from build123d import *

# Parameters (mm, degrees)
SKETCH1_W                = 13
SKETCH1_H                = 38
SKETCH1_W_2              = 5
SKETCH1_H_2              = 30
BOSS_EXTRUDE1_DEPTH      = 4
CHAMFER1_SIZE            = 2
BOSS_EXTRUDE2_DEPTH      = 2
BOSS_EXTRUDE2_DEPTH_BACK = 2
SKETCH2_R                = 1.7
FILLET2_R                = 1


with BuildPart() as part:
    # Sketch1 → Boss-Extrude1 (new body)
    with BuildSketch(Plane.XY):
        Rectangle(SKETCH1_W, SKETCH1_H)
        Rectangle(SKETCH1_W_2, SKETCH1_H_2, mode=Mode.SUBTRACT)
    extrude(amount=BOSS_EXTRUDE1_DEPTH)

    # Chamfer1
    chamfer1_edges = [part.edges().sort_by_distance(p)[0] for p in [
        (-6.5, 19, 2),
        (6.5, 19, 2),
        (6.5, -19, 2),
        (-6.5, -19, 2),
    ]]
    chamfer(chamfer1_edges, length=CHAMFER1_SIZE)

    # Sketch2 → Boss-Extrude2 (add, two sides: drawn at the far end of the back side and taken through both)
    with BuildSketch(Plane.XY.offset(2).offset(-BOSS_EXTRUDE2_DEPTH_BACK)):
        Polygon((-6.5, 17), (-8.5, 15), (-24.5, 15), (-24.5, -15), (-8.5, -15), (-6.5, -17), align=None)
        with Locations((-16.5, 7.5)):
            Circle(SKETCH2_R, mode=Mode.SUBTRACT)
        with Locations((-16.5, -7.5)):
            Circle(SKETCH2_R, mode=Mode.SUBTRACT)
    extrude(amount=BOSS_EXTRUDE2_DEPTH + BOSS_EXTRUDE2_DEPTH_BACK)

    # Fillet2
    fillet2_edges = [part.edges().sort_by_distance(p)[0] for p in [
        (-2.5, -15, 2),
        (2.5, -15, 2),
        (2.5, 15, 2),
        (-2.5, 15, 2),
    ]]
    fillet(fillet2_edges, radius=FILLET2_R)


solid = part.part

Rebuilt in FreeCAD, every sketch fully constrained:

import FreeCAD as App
import Part
import Sketcher
Q = App.Units.Quantity


def edges_at(feature, points):
    """Names of the edges that pass closest to the given points."""
    edges = feature.Shape.Edges
    near = lambda p: min(range(len(edges)), key=lambda i: edges[i].distToShape(Part.Vertex(*p))[0])
    return sorted({f"Edge{near(p) + 1}" for p in points})

doc = App.newDocument("Part")
params = doc.addObject("Spreadsheet::Sheet", "Params")
for row, (alias, value) in enumerate([
    ("sketch1_width", "13 mm"),
    ("sketch1_width2", "5 mm"),
    ("sketch1_height", "38 mm"),
    ("sketch1_height2", "30 mm"),
    ("pad1_length", "4 mm"),
    ("chamfer_size", "2 mm"),
    ("sketch2_diameter", "3.4 mm"),
    ("sketch2_width", "16 mm"),
    ("sketch2_height", "30 mm"),
    ("sketch2_height2", "34 mm"),
    ("pad2_length", "2 mm"),
    ("pad2_length2", "2 mm"),
    ("fillet_radius", "1 mm"),
], start=1):
    params.set(f"A{row}", alias)
    params.set(f"B{row}", "=" + value)
    params.setAlias(f"B{row}", alias)

body = doc.addObject("PartDesign::Body", "Body")

# Sketch on XY plane
sketch1 = body.newObject("Sketcher::SketchObject", "Sketch")
sketch1.AttachmentSupport = (doc.getObject("XY_Plane"), [""])
sketch1.MapMode = "FlatFace"
sketch1.addGeometry(Part.LineSegment(App.Vector(-6.5, 19, 0), App.Vector(-6.5, -19, 0)), False)
sketch1.addGeometry(Part.LineSegment(App.Vector(-6.5, -19, 0), App.Vector(6.5, -19, 0)), False)
sketch1.addGeometry(Part.LineSegment(App.Vector(6.5, -19, 0), App.Vector(6.5, 19, 0)), False)
sketch1.addGeometry(Part.LineSegment(App.Vector(6.5, 19, 0), App.Vector(-6.5, 19, 0)), False)
sketch1.addGeometry(Part.LineSegment(App.Vector(2.5, -15, 0), App.Vector(-2.5, -15, 0)), False)
sketch1.addGeometry(Part.LineSegment(App.Vector(-2.5, -15, 0), App.Vector(-2.5, 15, 0)), False)
sketch1.addGeometry(Part.LineSegment(App.Vector(-2.5, 15, 0), App.Vector(2.5, 15, 0)), False)
sketch1.addGeometry(Part.LineSegment(App.Vector(2.5, 15, 0), App.Vector(2.5, -15, 0)), False)
sketch1.addConstraint(Sketcher.Constraint("Coincident", 0, 2, 1, 1))
sketch1.addConstraint(Sketcher.Constraint("Coincident", 1, 2, 2, 1))
sketch1.addConstraint(Sketcher.Constraint("Coincident", 2, 2, 3, 1))
sketch1.addConstraint(Sketcher.Constraint("Coincident", 3, 2, 0, 1))
sketch1.addConstraint(Sketcher.Constraint("Coincident", 4, 2, 5, 1))
sketch1.addConstraint(Sketcher.Constraint("Coincident", 5, 2, 6, 1))
sketch1.addConstraint(Sketcher.Constraint("Coincident", 6, 2, 7, 1))
sketch1.addConstraint(Sketcher.Constraint("Coincident", 7, 2, 4, 1))
sketch1.addConstraint(Sketcher.Constraint("Vertical", 0))
sketch1.addConstraint(Sketcher.Constraint("Horizontal", 1))
sketch1.addConstraint(Sketcher.Constraint("Vertical", 2))
sketch1.addConstraint(Sketcher.Constraint("Horizontal", 3))
sketch1.addConstraint(Sketcher.Constraint("Horizontal", 4))
sketch1.addConstraint(Sketcher.Constraint("Vertical", 5))
sketch1.addConstraint(Sketcher.Constraint("Horizontal", 6))
sketch1.addConstraint(Sketcher.Constraint("Vertical", 7))
sketch1.addConstraint(Sketcher.Constraint("Symmetric", 0, 2, 2, 2, -1, 1))
sketch1.addConstraint(Sketcher.Constraint("Symmetric", 4, 2, 6, 2, -1, 1))
sketch1.addConstraint(Sketcher.Constraint("DistanceX", 1, 1, 1, 2, Q("13 mm")))
sketch1.addConstraint(Sketcher.Constraint("DistanceX", 4, 2, 4, 1, Q("5 mm")))
sketch1.addConstraint(Sketcher.Constraint("DistanceY", 0, 2, 0, 1, Q("38 mm")))
sketch1.addConstraint(Sketcher.Constraint("DistanceY", 5, 1, 5, 2, Q("30 mm")))
sketch1.setExpression("Constraints[18]", "Params.sketch1_width")
sketch1.setExpression("Constraints[19]", "Params.sketch1_width2")
sketch1.setExpression("Constraints[20]", "Params.sketch1_height")
sketch1.setExpression("Constraints[21]", "Params.sketch1_height2")
pad1 = body.newObject("PartDesign::Pad", "Pad")
pad1.Profile = sketch1
pad1.setExpression("Length", "Params.pad1_length")
doc.recompute()

chamfer = body.newObject("PartDesign::Chamfer", "Chamfer")
chamfer.Base = (pad1, edges_at(pad1, [
    (-6.5, 19, 2),
    (6.5, 19, 2),
    (6.5, -19, 2),
    (-6.5, -19, 2),
]))
chamfer.setExpression("Size", "Params.chamfer_size")

# Sketch on XY plane
sketch2 = body.newObject("Sketcher::SketchObject", "Sketch001")
sketch2.AttachmentSupport = (doc.getObject("XY_Plane"), [""])
sketch2.MapMode = "FlatFace"
sketch2.AttachmentOffset = App.Placement(App.Vector(0, 0, 2), App.Rotation())
sketch2.addGeometry(Part.LineSegment(App.Vector(-6.5, 17, 0), App.Vector(-8.5, 15, 0)), False)
sketch2.addGeometry(Part.LineSegment(App.Vector(-8.5, 15, 0), App.Vector(-24.5, 15, 0)), False)
sketch2.addGeometry(Part.LineSegment(App.Vector(-24.5, 15, 0), App.Vector(-24.5, -15, 0)), False)
sketch2.addGeometry(Part.LineSegment(App.Vector(-24.5, -15, 0), App.Vector(-8.5, -15, 0)), False)
sketch2.addGeometry(Part.LineSegment(App.Vector(-8.5, -15, 0), App.Vector(-6.5, -17, 0)), False)
sketch2.addGeometry(Part.LineSegment(App.Vector(-6.5, -17, 0), App.Vector(-6.5, 17, 0)), False)
sketch2.addGeometry(Part.Circle(App.Vector(-16.5, -7.5, 0), App.Vector(0, 0, 1), 1.7), False)
sketch2.addGeometry(Part.Circle(App.Vector(-16.5, 7.5, 0), App.Vector(0, 0, 1), 1.7), False)
sketch2.addConstraint(Sketcher.Constraint("Coincident", 0, 2, 1, 1))
sketch2.addConstraint(Sketcher.Constraint("Coincident", 1, 2, 2, 1))
sketch2.addConstraint(Sketcher.Constraint("Coincident", 2, 2, 3, 1))
sketch2.addConstraint(Sketcher.Constraint("Coincident", 3, 2, 4, 1))
sketch2.addConstraint(Sketcher.Constraint("Coincident", 4, 2, 5, 1))
sketch2.addConstraint(Sketcher.Constraint("Coincident", 5, 2, 0, 1))
sketch2.addConstraint(Sketcher.Constraint("Horizontal", 1))
sketch2.addConstraint(Sketcher.Constraint("Vertical", 2))
sketch2.addConstraint(Sketcher.Constraint("Horizontal", 3))
sketch2.addConstraint(Sketcher.Constraint("Vertical", 5))
sketch2.addConstraint(Sketcher.Constraint("Equal", 6, 7))
sketch2.addConstraint(Sketcher.Constraint("Symmetric", 6, 3, 7, 3, -1))
sketch2.addConstraint(Sketcher.Constraint("Symmetric", 0, 2, 3, 2, -1))
sketch2.addConstraint(Sketcher.Constraint("Perpendicular", 0, 4))
sketch2.addConstraint(Sketcher.Constraint("Equal", 0, 4))
sketch2.addConstraint(Sketcher.Constraint("Diameter", 6, Q("3.4 mm")))
sketch2.addConstraint(Sketcher.Constraint("DistanceX", 1, 2, 1, 1, Q("16 mm")))
sketch2.addConstraint(Sketcher.Constraint("DistanceY", 2, 2, 2, 1, Q("30 mm")))
sketch2.addConstraint(Sketcher.Constraint("DistanceY", 5, 1, 5, 2, Q("34 mm")))
sketch2.addConstraint(Sketcher.Constraint("DistanceY", 6, 3, 7, 3, Q("15 mm")))
sketch2.addConstraint(Sketcher.Constraint("DistanceX", 7, 3, 0, 2, Q("8 mm")))
sketch2.addConstraint(Sketcher.Constraint("DistanceX", 6, 3, -1, 1, Q("16.5 mm")))
sketch2.setExpression("Constraints[15]", "Params.sketch2_diameter")
sketch2.setExpression("Constraints[16]", "Params.sketch2_width")
sketch2.setExpression("Constraints[17]", "Params.sketch2_height")
sketch2.setExpression("Constraints[18]", "Params.sketch2_height2")
pad2 = body.newObject("PartDesign::Pad", "Pad001")
pad2.Profile = sketch2
pad2.Type = "TwoLengths"
pad2.setExpression("Length", "Params.pad2_length")
pad2.setExpression("Length2", "Params.pad2_length2")
doc.recompute()

fillet = body.newObject("PartDesign::Fillet", "Fillet")
fillet.Base = (pad2, edges_at(pad2, [
    (-2.5, -15, 2),
    (2.5, -15, 2),
    (2.5, 15, 2),
    (-2.5, 15, 2),
]))
fillet.setExpression("Radius", "Params.fillet_radius")

doc.recompute()
